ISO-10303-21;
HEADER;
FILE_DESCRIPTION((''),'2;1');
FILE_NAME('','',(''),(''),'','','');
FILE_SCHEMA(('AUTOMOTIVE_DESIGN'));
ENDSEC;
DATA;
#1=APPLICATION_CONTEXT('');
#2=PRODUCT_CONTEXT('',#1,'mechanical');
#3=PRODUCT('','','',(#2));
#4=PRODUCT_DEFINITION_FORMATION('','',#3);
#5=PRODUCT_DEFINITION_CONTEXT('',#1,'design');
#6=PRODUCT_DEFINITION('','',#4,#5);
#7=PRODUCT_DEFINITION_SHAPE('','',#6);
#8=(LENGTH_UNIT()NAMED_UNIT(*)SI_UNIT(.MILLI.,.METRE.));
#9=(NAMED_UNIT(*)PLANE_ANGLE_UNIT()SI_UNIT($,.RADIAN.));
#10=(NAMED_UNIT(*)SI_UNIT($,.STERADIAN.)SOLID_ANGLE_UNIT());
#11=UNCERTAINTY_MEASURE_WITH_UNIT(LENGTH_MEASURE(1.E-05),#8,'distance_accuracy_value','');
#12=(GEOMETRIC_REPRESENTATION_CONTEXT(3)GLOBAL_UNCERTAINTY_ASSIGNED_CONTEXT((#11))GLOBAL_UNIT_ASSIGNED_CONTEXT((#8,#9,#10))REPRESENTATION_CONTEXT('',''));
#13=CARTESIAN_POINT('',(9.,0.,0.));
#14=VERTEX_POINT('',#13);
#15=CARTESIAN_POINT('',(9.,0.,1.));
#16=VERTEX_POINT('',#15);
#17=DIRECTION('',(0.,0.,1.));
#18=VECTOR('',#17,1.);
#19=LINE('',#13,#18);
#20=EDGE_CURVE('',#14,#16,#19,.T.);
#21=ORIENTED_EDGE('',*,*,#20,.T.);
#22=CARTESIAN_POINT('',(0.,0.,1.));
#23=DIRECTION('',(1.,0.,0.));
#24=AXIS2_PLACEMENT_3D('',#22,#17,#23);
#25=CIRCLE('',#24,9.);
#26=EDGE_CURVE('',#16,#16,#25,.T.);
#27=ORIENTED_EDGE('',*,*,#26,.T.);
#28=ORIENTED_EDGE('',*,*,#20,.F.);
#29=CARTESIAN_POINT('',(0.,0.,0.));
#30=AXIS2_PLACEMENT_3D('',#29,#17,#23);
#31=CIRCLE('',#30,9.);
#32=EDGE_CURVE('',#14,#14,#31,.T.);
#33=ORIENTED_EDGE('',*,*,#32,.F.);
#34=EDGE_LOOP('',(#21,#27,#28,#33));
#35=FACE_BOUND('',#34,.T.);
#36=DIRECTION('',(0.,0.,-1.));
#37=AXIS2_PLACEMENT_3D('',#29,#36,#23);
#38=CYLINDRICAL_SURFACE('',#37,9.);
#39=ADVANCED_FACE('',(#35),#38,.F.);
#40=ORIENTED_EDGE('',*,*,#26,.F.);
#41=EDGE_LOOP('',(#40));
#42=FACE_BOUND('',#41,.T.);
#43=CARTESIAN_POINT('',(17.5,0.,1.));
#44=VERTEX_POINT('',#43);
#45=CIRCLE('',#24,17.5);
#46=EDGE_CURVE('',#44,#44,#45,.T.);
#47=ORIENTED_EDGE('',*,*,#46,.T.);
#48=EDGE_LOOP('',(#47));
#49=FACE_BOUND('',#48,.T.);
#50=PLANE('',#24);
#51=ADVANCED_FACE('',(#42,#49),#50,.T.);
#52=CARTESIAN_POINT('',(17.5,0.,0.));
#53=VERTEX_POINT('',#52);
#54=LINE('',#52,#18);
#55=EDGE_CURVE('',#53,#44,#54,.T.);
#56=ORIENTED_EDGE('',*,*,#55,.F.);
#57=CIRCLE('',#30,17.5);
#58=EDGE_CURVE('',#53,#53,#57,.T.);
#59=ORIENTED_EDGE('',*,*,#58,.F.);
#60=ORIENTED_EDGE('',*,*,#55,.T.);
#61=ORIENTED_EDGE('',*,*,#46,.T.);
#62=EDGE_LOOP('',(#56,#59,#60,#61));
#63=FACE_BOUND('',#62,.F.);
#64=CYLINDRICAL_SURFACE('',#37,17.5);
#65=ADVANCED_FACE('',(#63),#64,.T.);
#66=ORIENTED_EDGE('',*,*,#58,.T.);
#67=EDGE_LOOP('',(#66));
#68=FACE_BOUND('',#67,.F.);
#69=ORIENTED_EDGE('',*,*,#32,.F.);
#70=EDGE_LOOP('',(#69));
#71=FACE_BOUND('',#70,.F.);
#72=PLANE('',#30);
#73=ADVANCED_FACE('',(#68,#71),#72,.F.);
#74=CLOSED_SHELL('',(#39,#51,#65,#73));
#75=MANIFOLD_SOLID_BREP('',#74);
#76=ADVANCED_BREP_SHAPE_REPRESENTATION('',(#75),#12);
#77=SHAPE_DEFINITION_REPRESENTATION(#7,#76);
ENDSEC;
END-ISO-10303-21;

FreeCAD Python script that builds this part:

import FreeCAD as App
import Part
import Sketcher

V = App.Vector

doc = App.newDocument("Part")
params = doc.addObject("Spreadsheet::Sheet", "Params")
for row, (alias, value) in enumerate([
    ("sketch1_diameter", "35 mm"),
    ("sketch1_diameter2", "18 mm"),
    ("pad1_length", "1 mm"),
], start=1):
    params.set(f"A{row}", alias)
    params.set(f"B{row}", "=" + value)
    params.setAlias(f"B{row}", alias)

body = doc.addObject("PartDesign::Body", "Body")

# Sketch on XY plane
sketch1 = body.newObject("Sketcher::SketchObject", "Sketch")
sketch1.AttachmentSupport = (doc.getObject("XY_Plane"), [""])
sketch1.MapMode = "FlatFace"
sketch1.addGeometry([
    Part.Circle(V(0, 0, 0), V(0, 0, 1), 18),
    Part.Circle(V(0, 0, 0), V(0, 0, 1), 9),
], False)
sketch1.addConstraint([
    Sketcher.Constraint("Coincident", 0, 3, -1, 1),
    Sketcher.Constraint("Coincident", 1, 3, -1, 1),
    Sketcher.Constraint("Diameter", 0, 35.0),
    Sketcher.Constraint("Diameter", 1, 18.0),
])
sketch1.setExpression("Constraints[2]", "Params.sketch1_diameter")
sketch1.setExpression("Constraints[3]", "Params.sketch1_diameter2")
pad1 = body.newObject("PartDesign::Pad", "Pad")
pad1.Profile = sketch1
pad1.setExpression("Length", "Params.pad1_length")

doc.recompute()
